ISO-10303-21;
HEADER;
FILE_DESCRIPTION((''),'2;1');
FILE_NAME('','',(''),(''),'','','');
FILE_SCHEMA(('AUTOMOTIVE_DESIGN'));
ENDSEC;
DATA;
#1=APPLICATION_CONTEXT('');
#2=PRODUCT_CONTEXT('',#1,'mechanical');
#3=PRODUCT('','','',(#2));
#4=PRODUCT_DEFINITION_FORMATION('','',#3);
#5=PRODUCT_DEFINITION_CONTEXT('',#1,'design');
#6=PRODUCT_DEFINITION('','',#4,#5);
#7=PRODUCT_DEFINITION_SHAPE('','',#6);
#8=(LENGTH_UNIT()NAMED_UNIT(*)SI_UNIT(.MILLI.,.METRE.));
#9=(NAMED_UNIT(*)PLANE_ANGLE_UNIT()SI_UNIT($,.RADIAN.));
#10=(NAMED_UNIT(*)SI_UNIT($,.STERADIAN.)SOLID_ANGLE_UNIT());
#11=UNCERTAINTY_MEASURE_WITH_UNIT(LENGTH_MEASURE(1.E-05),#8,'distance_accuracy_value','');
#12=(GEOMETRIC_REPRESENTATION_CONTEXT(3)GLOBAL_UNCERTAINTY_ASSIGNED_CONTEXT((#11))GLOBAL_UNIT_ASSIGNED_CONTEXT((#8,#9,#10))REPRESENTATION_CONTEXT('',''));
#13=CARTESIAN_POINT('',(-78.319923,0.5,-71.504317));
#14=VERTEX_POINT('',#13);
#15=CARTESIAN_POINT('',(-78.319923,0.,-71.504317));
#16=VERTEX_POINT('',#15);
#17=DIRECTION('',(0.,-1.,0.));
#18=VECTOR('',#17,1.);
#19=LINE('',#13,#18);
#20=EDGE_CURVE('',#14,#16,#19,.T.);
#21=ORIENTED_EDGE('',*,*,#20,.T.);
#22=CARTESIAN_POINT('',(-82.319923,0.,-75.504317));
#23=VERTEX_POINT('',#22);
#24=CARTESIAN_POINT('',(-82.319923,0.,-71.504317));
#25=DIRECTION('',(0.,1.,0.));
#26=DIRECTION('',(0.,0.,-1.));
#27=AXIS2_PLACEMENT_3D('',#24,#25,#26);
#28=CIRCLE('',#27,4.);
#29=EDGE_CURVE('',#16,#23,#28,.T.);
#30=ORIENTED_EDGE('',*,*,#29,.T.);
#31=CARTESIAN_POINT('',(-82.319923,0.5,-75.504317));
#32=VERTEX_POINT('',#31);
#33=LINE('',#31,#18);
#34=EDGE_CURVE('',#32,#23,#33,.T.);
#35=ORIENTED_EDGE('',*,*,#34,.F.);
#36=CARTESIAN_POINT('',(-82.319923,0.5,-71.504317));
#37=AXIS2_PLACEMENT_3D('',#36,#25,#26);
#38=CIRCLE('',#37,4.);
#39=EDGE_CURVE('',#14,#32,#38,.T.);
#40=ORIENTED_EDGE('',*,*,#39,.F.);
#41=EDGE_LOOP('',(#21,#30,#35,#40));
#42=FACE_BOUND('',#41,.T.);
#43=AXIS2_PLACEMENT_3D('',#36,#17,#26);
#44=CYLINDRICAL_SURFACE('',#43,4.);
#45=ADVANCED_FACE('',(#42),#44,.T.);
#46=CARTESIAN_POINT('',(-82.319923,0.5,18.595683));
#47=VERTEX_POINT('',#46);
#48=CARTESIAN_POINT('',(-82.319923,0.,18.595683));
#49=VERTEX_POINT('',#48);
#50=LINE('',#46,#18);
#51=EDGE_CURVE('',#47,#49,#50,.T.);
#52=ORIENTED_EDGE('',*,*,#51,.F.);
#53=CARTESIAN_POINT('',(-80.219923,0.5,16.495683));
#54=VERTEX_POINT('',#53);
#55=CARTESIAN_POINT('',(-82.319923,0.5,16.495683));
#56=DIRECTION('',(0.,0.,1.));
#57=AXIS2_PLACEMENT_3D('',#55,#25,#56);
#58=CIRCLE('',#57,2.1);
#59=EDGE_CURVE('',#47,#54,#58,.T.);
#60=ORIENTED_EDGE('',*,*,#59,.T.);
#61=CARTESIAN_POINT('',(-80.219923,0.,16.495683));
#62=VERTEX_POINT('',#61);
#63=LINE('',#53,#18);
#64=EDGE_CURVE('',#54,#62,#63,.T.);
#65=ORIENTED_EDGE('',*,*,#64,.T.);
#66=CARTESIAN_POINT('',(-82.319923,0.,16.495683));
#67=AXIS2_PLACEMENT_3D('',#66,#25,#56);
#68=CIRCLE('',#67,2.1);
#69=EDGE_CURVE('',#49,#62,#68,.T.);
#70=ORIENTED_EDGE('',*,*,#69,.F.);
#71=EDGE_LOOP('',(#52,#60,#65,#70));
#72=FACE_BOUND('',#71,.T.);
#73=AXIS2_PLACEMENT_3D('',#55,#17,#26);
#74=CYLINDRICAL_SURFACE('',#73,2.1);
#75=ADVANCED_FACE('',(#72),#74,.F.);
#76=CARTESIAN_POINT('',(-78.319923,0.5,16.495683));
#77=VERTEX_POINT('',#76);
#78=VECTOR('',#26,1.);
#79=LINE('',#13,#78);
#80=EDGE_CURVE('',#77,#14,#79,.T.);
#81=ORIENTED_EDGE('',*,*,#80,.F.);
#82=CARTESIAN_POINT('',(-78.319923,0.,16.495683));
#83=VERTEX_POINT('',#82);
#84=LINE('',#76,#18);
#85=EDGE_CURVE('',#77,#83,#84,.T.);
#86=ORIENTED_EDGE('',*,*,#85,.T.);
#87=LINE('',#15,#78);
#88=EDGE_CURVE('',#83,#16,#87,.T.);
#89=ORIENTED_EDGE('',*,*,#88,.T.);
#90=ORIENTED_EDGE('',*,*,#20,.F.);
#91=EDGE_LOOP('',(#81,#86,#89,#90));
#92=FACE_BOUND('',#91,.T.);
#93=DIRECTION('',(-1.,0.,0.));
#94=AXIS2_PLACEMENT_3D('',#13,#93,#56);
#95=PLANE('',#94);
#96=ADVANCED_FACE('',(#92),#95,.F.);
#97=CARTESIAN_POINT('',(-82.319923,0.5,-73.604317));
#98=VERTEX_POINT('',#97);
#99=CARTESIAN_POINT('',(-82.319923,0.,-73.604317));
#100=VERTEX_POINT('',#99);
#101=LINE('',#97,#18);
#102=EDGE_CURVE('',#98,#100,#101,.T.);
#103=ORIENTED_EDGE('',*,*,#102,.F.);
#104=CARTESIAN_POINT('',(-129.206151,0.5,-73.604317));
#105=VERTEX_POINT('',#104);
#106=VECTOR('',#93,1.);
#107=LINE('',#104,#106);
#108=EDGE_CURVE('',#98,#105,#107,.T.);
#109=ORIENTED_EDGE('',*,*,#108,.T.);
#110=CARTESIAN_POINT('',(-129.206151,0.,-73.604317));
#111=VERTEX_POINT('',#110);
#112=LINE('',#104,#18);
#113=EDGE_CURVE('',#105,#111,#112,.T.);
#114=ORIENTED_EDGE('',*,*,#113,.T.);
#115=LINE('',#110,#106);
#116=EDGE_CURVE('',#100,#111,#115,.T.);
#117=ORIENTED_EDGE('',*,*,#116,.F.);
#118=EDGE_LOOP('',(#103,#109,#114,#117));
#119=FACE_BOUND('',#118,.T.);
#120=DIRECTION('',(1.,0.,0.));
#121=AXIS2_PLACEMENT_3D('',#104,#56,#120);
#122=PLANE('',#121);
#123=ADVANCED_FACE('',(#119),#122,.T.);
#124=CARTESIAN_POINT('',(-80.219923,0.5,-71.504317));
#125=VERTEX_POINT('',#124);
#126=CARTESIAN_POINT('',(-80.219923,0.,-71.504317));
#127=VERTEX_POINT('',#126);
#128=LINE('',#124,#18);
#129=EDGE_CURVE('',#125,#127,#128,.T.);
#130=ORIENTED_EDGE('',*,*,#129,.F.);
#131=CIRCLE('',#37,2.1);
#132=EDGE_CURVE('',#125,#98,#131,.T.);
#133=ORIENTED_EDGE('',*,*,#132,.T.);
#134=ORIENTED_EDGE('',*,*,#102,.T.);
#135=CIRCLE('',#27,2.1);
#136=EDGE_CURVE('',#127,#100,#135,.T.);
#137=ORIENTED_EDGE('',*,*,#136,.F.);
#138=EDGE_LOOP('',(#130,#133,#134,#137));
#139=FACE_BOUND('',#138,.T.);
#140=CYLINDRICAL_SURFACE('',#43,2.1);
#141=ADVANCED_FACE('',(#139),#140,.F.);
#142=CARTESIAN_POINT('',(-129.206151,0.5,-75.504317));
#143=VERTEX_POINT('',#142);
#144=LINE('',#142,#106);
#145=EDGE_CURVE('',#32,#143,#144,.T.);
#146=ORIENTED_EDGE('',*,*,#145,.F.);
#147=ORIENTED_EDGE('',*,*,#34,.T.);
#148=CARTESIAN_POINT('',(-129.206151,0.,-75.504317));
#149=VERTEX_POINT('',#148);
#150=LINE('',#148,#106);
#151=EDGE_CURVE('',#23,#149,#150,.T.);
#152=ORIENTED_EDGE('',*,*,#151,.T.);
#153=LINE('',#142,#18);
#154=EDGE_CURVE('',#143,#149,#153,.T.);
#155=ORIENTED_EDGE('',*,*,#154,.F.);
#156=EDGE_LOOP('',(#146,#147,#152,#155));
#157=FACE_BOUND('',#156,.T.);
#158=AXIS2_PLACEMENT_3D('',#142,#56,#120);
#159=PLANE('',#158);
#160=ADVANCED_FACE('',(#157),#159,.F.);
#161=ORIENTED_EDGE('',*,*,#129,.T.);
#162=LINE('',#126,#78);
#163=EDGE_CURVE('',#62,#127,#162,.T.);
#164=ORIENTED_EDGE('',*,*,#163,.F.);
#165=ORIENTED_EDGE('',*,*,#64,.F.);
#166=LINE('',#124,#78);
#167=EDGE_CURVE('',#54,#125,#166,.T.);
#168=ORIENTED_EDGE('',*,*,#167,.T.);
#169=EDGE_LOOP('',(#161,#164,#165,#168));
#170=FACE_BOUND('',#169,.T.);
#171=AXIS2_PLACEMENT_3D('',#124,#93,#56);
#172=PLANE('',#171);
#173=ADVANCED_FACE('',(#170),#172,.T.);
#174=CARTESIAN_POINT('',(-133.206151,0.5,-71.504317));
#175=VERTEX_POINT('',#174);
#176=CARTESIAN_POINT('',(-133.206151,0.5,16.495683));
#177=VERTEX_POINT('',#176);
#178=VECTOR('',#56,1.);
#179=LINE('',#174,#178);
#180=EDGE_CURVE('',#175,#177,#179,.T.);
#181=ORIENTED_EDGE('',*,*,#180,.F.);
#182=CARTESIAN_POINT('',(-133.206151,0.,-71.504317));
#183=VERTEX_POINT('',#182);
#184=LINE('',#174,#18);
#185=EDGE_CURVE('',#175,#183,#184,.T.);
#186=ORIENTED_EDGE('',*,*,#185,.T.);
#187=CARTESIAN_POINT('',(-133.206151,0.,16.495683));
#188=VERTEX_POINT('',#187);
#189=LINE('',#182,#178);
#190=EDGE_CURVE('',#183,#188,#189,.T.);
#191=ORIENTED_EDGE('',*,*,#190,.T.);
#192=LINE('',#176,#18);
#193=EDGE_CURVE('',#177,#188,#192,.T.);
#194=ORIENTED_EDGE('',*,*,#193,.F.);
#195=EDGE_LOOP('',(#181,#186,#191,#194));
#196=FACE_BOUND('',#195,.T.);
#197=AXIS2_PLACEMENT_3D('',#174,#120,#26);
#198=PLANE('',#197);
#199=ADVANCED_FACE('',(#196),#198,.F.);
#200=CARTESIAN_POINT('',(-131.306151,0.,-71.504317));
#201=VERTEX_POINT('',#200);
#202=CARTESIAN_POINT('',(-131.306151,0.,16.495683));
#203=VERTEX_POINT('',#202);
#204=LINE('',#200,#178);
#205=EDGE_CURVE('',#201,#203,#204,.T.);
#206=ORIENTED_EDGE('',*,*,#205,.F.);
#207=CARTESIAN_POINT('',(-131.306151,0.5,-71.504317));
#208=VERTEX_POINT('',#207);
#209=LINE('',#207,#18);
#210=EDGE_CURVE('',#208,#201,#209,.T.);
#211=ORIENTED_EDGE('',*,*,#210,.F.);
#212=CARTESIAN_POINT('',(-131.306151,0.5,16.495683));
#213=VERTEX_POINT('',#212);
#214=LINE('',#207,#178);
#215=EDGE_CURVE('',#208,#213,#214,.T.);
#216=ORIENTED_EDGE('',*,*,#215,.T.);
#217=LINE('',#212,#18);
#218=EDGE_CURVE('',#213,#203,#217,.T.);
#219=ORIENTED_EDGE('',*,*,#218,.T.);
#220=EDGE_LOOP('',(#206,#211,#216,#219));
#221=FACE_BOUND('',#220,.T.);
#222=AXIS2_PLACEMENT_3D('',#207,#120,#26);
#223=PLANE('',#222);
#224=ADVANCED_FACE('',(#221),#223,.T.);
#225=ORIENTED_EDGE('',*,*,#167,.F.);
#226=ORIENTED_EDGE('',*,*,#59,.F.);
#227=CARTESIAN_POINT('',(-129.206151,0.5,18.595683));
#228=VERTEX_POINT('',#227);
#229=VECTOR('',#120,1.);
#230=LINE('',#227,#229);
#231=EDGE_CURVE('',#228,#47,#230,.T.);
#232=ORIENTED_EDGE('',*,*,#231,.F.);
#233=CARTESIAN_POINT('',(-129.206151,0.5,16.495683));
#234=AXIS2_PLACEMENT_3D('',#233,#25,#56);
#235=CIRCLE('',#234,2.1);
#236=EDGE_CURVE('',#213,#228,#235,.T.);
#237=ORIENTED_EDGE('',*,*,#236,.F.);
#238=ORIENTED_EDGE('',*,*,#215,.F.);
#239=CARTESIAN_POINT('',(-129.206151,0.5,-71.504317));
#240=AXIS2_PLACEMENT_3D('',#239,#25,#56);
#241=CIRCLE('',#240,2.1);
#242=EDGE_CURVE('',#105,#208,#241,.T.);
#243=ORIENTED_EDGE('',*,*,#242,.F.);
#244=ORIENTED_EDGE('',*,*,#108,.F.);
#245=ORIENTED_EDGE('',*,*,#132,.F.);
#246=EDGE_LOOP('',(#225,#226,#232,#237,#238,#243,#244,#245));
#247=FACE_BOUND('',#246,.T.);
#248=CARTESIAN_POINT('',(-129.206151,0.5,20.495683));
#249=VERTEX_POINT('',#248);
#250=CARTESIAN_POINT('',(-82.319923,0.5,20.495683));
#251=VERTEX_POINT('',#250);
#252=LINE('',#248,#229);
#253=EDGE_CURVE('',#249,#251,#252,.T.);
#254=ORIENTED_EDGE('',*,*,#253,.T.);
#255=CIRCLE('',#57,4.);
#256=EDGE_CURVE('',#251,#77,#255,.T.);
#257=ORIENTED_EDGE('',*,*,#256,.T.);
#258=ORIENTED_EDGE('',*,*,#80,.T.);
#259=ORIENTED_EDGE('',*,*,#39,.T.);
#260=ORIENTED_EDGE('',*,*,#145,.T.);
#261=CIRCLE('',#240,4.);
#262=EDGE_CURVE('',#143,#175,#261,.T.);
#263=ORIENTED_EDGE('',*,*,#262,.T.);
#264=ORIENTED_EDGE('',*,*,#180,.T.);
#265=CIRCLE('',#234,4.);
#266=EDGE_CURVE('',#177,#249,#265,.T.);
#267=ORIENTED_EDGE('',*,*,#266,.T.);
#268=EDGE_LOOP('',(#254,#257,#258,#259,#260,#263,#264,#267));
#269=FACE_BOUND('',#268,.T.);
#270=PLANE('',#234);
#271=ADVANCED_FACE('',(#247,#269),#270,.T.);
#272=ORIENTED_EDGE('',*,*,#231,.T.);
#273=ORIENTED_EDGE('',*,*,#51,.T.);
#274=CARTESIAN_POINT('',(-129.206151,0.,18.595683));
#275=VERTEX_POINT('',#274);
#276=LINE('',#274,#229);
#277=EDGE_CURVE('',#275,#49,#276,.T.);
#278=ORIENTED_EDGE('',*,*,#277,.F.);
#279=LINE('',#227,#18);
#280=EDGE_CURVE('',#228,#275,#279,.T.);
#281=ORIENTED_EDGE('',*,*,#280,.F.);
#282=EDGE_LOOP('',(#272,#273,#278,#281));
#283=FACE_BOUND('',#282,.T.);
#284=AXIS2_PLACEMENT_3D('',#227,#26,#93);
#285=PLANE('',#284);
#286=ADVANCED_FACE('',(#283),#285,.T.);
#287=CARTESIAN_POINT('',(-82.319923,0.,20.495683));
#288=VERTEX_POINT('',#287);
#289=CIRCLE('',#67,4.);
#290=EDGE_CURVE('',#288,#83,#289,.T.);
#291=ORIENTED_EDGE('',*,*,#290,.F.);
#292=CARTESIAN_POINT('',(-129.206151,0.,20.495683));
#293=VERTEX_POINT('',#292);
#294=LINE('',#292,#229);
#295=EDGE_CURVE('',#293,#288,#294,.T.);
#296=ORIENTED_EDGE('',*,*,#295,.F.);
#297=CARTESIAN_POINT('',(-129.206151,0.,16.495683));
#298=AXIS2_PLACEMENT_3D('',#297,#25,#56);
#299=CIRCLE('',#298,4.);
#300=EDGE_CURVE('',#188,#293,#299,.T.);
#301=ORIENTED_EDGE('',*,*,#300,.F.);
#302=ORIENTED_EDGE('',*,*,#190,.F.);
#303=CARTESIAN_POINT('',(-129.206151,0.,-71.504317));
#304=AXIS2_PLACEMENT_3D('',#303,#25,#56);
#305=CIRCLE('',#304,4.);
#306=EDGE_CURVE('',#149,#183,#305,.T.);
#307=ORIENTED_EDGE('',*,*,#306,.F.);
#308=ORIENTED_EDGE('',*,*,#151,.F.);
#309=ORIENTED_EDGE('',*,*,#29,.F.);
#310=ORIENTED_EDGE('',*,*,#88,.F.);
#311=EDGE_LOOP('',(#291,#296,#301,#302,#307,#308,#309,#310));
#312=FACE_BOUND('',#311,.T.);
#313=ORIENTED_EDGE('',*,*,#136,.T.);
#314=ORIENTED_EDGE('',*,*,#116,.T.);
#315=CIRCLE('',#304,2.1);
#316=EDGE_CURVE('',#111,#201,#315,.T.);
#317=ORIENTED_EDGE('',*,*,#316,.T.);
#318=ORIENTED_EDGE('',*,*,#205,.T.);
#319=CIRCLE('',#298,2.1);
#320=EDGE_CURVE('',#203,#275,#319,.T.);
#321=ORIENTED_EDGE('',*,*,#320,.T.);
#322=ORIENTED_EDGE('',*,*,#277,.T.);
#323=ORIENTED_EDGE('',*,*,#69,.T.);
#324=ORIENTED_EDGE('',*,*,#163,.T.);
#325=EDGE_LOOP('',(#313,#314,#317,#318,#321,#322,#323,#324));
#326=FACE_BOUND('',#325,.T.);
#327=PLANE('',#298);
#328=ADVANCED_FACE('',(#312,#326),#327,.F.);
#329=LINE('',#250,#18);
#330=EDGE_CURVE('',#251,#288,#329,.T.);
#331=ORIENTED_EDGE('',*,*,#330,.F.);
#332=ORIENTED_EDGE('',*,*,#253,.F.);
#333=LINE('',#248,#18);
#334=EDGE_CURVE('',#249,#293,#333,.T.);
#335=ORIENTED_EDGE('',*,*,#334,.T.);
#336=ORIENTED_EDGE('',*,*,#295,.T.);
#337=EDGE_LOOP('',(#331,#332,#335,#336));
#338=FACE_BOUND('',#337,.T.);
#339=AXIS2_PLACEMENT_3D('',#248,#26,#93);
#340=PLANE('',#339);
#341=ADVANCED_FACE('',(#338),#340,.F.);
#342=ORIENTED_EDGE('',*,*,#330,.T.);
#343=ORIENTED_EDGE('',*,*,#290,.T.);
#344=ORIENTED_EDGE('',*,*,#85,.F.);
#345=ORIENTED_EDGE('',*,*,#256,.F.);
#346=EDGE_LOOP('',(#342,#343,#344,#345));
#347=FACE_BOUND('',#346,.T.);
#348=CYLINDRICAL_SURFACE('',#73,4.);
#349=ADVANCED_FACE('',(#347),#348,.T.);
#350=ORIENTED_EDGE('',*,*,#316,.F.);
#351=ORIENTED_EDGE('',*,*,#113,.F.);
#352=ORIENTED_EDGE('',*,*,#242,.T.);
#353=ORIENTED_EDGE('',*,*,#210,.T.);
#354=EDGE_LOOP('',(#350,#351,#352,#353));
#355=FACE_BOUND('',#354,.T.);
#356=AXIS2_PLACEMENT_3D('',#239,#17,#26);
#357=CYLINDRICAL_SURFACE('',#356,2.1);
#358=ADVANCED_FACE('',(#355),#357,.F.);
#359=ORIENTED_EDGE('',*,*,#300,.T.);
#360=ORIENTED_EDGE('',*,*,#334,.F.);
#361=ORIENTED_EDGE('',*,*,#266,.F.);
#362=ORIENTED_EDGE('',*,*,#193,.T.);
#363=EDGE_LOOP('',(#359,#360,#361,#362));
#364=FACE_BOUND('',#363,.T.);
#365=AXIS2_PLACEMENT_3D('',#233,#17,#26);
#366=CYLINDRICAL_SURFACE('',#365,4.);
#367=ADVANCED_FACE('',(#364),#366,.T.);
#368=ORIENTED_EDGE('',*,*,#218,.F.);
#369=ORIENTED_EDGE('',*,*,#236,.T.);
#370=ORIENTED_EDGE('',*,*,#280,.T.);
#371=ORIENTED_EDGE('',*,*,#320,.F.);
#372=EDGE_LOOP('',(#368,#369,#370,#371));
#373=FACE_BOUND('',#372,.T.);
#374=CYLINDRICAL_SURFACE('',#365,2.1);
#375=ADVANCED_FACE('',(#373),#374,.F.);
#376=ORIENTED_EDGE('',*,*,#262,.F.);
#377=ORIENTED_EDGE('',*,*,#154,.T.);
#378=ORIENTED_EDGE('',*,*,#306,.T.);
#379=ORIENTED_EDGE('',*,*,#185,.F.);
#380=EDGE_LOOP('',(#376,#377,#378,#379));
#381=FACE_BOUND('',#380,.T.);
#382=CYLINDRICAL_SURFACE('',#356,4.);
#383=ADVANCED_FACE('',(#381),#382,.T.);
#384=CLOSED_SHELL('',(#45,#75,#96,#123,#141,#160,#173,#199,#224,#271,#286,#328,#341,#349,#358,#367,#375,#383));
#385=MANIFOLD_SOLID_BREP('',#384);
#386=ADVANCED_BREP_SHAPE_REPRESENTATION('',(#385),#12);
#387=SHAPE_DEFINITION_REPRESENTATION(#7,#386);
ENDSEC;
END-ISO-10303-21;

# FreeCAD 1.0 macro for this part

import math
import FreeCAD as App
import Part
import Sketcher

doc = App.newDocument("Part")
body = doc.addObject("PartDesign::Body", "Body")

# Sketch on XZ plane
sketch1 = body.newObject("Sketcher::SketchObject", "Sketch")
sketch1.AttachmentSupport = (doc.getObject("XZ_Plane"), [""])
sketch1.MapMode = "FlatFace"
sketch1.addGeometry([
    Part.LineSegment(App.Vector(-82.319923, -75.504317, 0), App.Vector(-129.206151, -75.504317, 0)),  # 0
    Part.ArcOfCircle(Part.Circle(App.Vector(-129.206151, -71.504317, 0), App.Vector(0, 0, 1), 4), math.radians(180), math.radians(270)),  # 1
    Part.LineSegment(App.Vector(-133.206151, -71.504317, 0), App.Vector(-133.206151, 16.495683, 0)),  # 2
    Part.ArcOfCircle(Part.Circle(App.Vector(-129.206151, 16.495683, 0), App.Vector(0, 0, 1), 4), math.radians(90), math.radians(180)),  # 3
    Part.LineSegment(App.Vector(-129.206151, 20.495683, 0), App.Vector(-82.319923, 20.495683, 0)),  # 4
    Part.ArcOfCircle(Part.Circle(App.Vector(-82.319923, 16.495683, 0), App.Vector(0, 0, 1), 4), math.radians(0), math.radians(90)),  # 5
    Part.LineSegment(App.Vector(-78.319923, 16.495683, 0), App.Vector(-78.319923, -71.504317, 0)),  # 6
    Part.ArcOfCircle(Part.Circle(App.Vector(-82.319923, -71.504317, 0), App.Vector(0, 0, 1), 4), math.radians(-90), math.radians(0)),  # 7
    Part.ArcOfCircle(Part.Circle(App.Vector(-129.206151, -71.504317, 0), App.Vector(0, 0, 1), 2.1), math.radians(180), math.radians(270)),  # 8
    Part.LineSegment(App.Vector(-129.206151, -73.604317, 0), App.Vector(-82.319923, -73.604317, 0)),  # 9
    Part.ArcOfCircle(Part.Circle(App.Vector(-82.319923, -71.504317, 0), App.Vector(0, 0, 1), 2.1), math.radians(-90), math.radians(0)),  # 10
    Part.LineSegment(App.Vector(-80.219923, -71.504317, 0), App.Vector(-80.219923, 16.495683, 0)),  # 11
    Part.ArcOfCircle(Part.Circle(App.Vector(-82.319923, 16.495683, 0), App.Vector(0, 0, 1), 2.1), math.radians(0), math.radians(90)),  # 12
    Part.LineSegment(App.Vector(-82.319923, 18.595683, 0), App.Vector(-129.206151, 18.595683, 0)),  # 13
    Part.ArcOfCircle(Part.Circle(App.Vector(-129.206151, 16.495683, 0), App.Vector(0, 0, 1), 2.1), math.radians(90), math.radians(180)),  # 14
    Part.LineSegment(App.Vector(-131.306151, 16.495683, 0), App.Vector(-131.306151, -71.504317, 0)),  # 15
], False)
sketch1.addConstraint([
    Sketcher.Constraint("Tangent", 0, 2, 1, 2),
    Sketcher.Constraint("Tangent", 1, 1, 2, 1),
    Sketcher.Constraint("Tangent", 2, 2, 3, 2),
    Sketcher.Constraint("Tangent", 3, 1, 4, 1),
    Sketcher.Constraint("Tangent", 4, 2, 5, 2),
    Sketcher.Constraint("Tangent", 5, 1, 6, 1),
    Sketcher.Constraint("Tangent", 6, 2, 7, 2),
    Sketcher.Constraint("Tangent", 7, 1, 0, 1),
    Sketcher.Constraint("Tangent", 8, 2, 9, 1),
    Sketcher.Constraint("Tangent", 9, 2, 10, 1),
    Sketcher.Constraint("Tangent", 10, 2, 11, 1),
    Sketcher.Constraint("Tangent", 11, 2, 12, 1),
    Sketcher.Constraint("Tangent", 12, 2, 13, 1),
    Sketcher.Constraint("Tangent", 13, 2, 14, 1),
    Sketcher.Constraint("Tangent", 14, 2, 15, 1),
    Sketcher.Constraint("Tangent", 15, 2, 8, 1),
    Sketcher.Constraint("Horizontal", 0),
    Sketcher.Constraint("Vertical", 2),
    Sketcher.Constraint("Horizontal", 4),
    Sketcher.Constraint("Vertical", 6),
    Sketcher.Constraint("Horizontal", 9),
    Sketcher.Constraint("Vertical", 11),
    Sketcher.Constraint("Horizontal", 13),
    Sketcher.Constraint("Vertical", 15),
    Sketcher.Constraint("Coincident", 8, 3, 1, 3),
    Sketcher.Constraint("Coincident", 10, 3, 7, 3),
    Sketcher.Constraint("Coincident", 12, 3, 5, 3),
    Sketcher.Constraint("Equal", 1, 3),
    Sketcher.Constraint("Equal", 3, 5),
    Sketcher.Constraint("Equal", 5, 7),
    Sketcher.Constraint("Equal", 12, 14),
    Sketcher.Constraint("Radius", 1, 4.0),
    Sketcher.Constraint("Radius", 8, 2.1),
    Sketcher.Constraint("DistanceY", 2, 1, 2, 2, 88.0),
    Sketcher.Constraint("DistanceX", 0, 2, 0, 1, 46.886228),
    Sketcher.Constraint("DistanceX", 1, 3, -1, 1, 129.206151),
    Sketcher.Constraint("DistanceY", 1, 3, -1, 1, 71.504317),
])
pad1 = body.newObject("PartDesign::Pad", "Pad")
pad1.Profile = sketch1
pad1.Length = 0.5
pad1.Reversed = True

doc.recompute()
